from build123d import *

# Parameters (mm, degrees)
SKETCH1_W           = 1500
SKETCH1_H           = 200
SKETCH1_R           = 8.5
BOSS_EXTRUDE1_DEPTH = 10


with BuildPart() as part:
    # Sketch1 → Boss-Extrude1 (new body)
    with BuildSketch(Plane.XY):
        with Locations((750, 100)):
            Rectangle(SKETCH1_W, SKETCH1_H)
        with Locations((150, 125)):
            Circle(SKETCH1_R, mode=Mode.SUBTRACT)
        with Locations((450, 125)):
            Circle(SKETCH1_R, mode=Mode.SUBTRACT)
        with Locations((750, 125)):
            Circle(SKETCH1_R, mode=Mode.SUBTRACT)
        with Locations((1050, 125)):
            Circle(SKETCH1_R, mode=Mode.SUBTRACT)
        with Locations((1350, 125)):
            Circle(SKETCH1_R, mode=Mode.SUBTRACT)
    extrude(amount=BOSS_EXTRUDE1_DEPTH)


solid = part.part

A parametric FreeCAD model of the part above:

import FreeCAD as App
import Part
import Sketcher

V = App.Vector

doc = App.newDocument("Part")
body = doc.addObject("PartDesign::Body", "Body")

# Sketch on XY plane
sketch1 = body.newObject("Sketcher::SketchObject", "Sketch")
sketch1.AttachmentSupport = (doc.getObject("XY_Plane"), [""])
sketch1.MapMode = "FlatFace"
sketch1.addGeometry(Part.LineSegment(V(0, 200, 0), V(0, 0, 0)), False)
sketch1.addGeometry(Part.LineSegment(V(0, 0, 0), V(1500, 0, 0)), False)
sketch1.addGeometry(Part.LineSegment(V(1500, 0, 0), V(1500, 200, 0)), False)
sketch1.addGeometry(Part.LineSegment(V(1500, 200, 0), V(0, 200, 0)), False)
sketch1.addGeometry(Part.Circle(V(150, 125, 0), V(0, 0, 1), 8), False)
sketch1.addGeometry(Part.Circle(V(450, 125, 0), V(0, 0, 1), 8), False)
sketch1.addGeometry(Part.Circle(V(750, 125, 0), V(0, 0, 1), 8), False)
sketch1.addGeometry(Part.Circle(V(1050, 125, 0), V(0, 0, 1), 8), False)
sketch1.addGeometry(Part.Circle(V(1350, 125, 0), V(0, 0, 1), 8), False)
sketch1.addConstraint(Sketcher.Constraint("Coincident", 0, 2, 1, 1))
sketch1.addConstraint(Sketcher.Constraint("Coincident", 1, 2, 2, 1))
sketch1.addConstraint(Sketcher.Constraint("Coincident", 2, 2, 3, 1))
sketch1.addConstraint(Sketcher.Constraint("Coincident", 3, 2, 0, 1))
sketch1.addConstraint(Sketcher.Constraint("Vertical", 0))
sketch1.addConstraint(Sketcher.Constraint("Horizontal", 1))
sketch1.addConstraint(Sketcher.Constraint("Vertical", 2))
sketch1.addConstraint(Sketcher.Constraint("Horizontal", 3))
sketch1.addConstraint(Sketcher.Constraint("Coincident", 0, 2, -1, 1))
sketch1.addConstraint(Sketcher.Constraint("Equal", 4, 5))
sketch1.addConstraint(Sketcher.Constraint("Equal", 5, 6))
sketch1.addConstraint(Sketcher.Constraint("Equal", 6, 7))
sketch1.addConstraint(Sketcher.Constraint("Equal", 7, 8))
sketch1.addConstraint(Sketcher.Constraint("Horizontal", 4, 3, 5, 3))
sketch1.addConstraint(Sketcher.Constraint("Horizontal", 5, 3, 6, 3))
sketch1.addConstraint(Sketcher.Constraint("Horizontal", 6, 3, 7, 3))
sketch1.addConstraint(Sketcher.Constraint("Horizontal", 7, 3, 8, 3))
sketch1.addConstraint(Sketcher.Constraint("Diameter", 4, 17.0))
sketch1.addConstraint(Sketcher.Constraint("DistanceX", 1, 1, 1, 2, 1500.0))
sketch1.addConstraint(Sketcher.Constraint("DistanceY", 0, 2, 0, 1, 200.0))
sketch1.addConstraint(Sketcher.Constraint("DistanceX", -1, 1, 4, 3, 150.0))
sketch1.addConstraint(Sketcher.Constraint("DistanceY", -1, 1, 4, 3, 125.0))
sketch1.addConstraint(Sketcher.Constraint("DistanceX", -1, 1, 5, 3, 450.0))
sketch1.addConstraint(Sketcher.Constraint("DistanceX", -1, 1, 6, 3, 750.0))
sketch1.addConstraint(Sketcher.Constraint("DistanceX", -1, 1, 7, 3, 1050.0))
sketch1.addConstraint(Sketcher.Constraint("DistanceX", -1, 1, 8, 3, 1350.0))
pad1 = body.newObject("PartDesign::Pad", "Pad")
pad1.Profile = sketch1
pad1.Length = 10

doc.recompute()
